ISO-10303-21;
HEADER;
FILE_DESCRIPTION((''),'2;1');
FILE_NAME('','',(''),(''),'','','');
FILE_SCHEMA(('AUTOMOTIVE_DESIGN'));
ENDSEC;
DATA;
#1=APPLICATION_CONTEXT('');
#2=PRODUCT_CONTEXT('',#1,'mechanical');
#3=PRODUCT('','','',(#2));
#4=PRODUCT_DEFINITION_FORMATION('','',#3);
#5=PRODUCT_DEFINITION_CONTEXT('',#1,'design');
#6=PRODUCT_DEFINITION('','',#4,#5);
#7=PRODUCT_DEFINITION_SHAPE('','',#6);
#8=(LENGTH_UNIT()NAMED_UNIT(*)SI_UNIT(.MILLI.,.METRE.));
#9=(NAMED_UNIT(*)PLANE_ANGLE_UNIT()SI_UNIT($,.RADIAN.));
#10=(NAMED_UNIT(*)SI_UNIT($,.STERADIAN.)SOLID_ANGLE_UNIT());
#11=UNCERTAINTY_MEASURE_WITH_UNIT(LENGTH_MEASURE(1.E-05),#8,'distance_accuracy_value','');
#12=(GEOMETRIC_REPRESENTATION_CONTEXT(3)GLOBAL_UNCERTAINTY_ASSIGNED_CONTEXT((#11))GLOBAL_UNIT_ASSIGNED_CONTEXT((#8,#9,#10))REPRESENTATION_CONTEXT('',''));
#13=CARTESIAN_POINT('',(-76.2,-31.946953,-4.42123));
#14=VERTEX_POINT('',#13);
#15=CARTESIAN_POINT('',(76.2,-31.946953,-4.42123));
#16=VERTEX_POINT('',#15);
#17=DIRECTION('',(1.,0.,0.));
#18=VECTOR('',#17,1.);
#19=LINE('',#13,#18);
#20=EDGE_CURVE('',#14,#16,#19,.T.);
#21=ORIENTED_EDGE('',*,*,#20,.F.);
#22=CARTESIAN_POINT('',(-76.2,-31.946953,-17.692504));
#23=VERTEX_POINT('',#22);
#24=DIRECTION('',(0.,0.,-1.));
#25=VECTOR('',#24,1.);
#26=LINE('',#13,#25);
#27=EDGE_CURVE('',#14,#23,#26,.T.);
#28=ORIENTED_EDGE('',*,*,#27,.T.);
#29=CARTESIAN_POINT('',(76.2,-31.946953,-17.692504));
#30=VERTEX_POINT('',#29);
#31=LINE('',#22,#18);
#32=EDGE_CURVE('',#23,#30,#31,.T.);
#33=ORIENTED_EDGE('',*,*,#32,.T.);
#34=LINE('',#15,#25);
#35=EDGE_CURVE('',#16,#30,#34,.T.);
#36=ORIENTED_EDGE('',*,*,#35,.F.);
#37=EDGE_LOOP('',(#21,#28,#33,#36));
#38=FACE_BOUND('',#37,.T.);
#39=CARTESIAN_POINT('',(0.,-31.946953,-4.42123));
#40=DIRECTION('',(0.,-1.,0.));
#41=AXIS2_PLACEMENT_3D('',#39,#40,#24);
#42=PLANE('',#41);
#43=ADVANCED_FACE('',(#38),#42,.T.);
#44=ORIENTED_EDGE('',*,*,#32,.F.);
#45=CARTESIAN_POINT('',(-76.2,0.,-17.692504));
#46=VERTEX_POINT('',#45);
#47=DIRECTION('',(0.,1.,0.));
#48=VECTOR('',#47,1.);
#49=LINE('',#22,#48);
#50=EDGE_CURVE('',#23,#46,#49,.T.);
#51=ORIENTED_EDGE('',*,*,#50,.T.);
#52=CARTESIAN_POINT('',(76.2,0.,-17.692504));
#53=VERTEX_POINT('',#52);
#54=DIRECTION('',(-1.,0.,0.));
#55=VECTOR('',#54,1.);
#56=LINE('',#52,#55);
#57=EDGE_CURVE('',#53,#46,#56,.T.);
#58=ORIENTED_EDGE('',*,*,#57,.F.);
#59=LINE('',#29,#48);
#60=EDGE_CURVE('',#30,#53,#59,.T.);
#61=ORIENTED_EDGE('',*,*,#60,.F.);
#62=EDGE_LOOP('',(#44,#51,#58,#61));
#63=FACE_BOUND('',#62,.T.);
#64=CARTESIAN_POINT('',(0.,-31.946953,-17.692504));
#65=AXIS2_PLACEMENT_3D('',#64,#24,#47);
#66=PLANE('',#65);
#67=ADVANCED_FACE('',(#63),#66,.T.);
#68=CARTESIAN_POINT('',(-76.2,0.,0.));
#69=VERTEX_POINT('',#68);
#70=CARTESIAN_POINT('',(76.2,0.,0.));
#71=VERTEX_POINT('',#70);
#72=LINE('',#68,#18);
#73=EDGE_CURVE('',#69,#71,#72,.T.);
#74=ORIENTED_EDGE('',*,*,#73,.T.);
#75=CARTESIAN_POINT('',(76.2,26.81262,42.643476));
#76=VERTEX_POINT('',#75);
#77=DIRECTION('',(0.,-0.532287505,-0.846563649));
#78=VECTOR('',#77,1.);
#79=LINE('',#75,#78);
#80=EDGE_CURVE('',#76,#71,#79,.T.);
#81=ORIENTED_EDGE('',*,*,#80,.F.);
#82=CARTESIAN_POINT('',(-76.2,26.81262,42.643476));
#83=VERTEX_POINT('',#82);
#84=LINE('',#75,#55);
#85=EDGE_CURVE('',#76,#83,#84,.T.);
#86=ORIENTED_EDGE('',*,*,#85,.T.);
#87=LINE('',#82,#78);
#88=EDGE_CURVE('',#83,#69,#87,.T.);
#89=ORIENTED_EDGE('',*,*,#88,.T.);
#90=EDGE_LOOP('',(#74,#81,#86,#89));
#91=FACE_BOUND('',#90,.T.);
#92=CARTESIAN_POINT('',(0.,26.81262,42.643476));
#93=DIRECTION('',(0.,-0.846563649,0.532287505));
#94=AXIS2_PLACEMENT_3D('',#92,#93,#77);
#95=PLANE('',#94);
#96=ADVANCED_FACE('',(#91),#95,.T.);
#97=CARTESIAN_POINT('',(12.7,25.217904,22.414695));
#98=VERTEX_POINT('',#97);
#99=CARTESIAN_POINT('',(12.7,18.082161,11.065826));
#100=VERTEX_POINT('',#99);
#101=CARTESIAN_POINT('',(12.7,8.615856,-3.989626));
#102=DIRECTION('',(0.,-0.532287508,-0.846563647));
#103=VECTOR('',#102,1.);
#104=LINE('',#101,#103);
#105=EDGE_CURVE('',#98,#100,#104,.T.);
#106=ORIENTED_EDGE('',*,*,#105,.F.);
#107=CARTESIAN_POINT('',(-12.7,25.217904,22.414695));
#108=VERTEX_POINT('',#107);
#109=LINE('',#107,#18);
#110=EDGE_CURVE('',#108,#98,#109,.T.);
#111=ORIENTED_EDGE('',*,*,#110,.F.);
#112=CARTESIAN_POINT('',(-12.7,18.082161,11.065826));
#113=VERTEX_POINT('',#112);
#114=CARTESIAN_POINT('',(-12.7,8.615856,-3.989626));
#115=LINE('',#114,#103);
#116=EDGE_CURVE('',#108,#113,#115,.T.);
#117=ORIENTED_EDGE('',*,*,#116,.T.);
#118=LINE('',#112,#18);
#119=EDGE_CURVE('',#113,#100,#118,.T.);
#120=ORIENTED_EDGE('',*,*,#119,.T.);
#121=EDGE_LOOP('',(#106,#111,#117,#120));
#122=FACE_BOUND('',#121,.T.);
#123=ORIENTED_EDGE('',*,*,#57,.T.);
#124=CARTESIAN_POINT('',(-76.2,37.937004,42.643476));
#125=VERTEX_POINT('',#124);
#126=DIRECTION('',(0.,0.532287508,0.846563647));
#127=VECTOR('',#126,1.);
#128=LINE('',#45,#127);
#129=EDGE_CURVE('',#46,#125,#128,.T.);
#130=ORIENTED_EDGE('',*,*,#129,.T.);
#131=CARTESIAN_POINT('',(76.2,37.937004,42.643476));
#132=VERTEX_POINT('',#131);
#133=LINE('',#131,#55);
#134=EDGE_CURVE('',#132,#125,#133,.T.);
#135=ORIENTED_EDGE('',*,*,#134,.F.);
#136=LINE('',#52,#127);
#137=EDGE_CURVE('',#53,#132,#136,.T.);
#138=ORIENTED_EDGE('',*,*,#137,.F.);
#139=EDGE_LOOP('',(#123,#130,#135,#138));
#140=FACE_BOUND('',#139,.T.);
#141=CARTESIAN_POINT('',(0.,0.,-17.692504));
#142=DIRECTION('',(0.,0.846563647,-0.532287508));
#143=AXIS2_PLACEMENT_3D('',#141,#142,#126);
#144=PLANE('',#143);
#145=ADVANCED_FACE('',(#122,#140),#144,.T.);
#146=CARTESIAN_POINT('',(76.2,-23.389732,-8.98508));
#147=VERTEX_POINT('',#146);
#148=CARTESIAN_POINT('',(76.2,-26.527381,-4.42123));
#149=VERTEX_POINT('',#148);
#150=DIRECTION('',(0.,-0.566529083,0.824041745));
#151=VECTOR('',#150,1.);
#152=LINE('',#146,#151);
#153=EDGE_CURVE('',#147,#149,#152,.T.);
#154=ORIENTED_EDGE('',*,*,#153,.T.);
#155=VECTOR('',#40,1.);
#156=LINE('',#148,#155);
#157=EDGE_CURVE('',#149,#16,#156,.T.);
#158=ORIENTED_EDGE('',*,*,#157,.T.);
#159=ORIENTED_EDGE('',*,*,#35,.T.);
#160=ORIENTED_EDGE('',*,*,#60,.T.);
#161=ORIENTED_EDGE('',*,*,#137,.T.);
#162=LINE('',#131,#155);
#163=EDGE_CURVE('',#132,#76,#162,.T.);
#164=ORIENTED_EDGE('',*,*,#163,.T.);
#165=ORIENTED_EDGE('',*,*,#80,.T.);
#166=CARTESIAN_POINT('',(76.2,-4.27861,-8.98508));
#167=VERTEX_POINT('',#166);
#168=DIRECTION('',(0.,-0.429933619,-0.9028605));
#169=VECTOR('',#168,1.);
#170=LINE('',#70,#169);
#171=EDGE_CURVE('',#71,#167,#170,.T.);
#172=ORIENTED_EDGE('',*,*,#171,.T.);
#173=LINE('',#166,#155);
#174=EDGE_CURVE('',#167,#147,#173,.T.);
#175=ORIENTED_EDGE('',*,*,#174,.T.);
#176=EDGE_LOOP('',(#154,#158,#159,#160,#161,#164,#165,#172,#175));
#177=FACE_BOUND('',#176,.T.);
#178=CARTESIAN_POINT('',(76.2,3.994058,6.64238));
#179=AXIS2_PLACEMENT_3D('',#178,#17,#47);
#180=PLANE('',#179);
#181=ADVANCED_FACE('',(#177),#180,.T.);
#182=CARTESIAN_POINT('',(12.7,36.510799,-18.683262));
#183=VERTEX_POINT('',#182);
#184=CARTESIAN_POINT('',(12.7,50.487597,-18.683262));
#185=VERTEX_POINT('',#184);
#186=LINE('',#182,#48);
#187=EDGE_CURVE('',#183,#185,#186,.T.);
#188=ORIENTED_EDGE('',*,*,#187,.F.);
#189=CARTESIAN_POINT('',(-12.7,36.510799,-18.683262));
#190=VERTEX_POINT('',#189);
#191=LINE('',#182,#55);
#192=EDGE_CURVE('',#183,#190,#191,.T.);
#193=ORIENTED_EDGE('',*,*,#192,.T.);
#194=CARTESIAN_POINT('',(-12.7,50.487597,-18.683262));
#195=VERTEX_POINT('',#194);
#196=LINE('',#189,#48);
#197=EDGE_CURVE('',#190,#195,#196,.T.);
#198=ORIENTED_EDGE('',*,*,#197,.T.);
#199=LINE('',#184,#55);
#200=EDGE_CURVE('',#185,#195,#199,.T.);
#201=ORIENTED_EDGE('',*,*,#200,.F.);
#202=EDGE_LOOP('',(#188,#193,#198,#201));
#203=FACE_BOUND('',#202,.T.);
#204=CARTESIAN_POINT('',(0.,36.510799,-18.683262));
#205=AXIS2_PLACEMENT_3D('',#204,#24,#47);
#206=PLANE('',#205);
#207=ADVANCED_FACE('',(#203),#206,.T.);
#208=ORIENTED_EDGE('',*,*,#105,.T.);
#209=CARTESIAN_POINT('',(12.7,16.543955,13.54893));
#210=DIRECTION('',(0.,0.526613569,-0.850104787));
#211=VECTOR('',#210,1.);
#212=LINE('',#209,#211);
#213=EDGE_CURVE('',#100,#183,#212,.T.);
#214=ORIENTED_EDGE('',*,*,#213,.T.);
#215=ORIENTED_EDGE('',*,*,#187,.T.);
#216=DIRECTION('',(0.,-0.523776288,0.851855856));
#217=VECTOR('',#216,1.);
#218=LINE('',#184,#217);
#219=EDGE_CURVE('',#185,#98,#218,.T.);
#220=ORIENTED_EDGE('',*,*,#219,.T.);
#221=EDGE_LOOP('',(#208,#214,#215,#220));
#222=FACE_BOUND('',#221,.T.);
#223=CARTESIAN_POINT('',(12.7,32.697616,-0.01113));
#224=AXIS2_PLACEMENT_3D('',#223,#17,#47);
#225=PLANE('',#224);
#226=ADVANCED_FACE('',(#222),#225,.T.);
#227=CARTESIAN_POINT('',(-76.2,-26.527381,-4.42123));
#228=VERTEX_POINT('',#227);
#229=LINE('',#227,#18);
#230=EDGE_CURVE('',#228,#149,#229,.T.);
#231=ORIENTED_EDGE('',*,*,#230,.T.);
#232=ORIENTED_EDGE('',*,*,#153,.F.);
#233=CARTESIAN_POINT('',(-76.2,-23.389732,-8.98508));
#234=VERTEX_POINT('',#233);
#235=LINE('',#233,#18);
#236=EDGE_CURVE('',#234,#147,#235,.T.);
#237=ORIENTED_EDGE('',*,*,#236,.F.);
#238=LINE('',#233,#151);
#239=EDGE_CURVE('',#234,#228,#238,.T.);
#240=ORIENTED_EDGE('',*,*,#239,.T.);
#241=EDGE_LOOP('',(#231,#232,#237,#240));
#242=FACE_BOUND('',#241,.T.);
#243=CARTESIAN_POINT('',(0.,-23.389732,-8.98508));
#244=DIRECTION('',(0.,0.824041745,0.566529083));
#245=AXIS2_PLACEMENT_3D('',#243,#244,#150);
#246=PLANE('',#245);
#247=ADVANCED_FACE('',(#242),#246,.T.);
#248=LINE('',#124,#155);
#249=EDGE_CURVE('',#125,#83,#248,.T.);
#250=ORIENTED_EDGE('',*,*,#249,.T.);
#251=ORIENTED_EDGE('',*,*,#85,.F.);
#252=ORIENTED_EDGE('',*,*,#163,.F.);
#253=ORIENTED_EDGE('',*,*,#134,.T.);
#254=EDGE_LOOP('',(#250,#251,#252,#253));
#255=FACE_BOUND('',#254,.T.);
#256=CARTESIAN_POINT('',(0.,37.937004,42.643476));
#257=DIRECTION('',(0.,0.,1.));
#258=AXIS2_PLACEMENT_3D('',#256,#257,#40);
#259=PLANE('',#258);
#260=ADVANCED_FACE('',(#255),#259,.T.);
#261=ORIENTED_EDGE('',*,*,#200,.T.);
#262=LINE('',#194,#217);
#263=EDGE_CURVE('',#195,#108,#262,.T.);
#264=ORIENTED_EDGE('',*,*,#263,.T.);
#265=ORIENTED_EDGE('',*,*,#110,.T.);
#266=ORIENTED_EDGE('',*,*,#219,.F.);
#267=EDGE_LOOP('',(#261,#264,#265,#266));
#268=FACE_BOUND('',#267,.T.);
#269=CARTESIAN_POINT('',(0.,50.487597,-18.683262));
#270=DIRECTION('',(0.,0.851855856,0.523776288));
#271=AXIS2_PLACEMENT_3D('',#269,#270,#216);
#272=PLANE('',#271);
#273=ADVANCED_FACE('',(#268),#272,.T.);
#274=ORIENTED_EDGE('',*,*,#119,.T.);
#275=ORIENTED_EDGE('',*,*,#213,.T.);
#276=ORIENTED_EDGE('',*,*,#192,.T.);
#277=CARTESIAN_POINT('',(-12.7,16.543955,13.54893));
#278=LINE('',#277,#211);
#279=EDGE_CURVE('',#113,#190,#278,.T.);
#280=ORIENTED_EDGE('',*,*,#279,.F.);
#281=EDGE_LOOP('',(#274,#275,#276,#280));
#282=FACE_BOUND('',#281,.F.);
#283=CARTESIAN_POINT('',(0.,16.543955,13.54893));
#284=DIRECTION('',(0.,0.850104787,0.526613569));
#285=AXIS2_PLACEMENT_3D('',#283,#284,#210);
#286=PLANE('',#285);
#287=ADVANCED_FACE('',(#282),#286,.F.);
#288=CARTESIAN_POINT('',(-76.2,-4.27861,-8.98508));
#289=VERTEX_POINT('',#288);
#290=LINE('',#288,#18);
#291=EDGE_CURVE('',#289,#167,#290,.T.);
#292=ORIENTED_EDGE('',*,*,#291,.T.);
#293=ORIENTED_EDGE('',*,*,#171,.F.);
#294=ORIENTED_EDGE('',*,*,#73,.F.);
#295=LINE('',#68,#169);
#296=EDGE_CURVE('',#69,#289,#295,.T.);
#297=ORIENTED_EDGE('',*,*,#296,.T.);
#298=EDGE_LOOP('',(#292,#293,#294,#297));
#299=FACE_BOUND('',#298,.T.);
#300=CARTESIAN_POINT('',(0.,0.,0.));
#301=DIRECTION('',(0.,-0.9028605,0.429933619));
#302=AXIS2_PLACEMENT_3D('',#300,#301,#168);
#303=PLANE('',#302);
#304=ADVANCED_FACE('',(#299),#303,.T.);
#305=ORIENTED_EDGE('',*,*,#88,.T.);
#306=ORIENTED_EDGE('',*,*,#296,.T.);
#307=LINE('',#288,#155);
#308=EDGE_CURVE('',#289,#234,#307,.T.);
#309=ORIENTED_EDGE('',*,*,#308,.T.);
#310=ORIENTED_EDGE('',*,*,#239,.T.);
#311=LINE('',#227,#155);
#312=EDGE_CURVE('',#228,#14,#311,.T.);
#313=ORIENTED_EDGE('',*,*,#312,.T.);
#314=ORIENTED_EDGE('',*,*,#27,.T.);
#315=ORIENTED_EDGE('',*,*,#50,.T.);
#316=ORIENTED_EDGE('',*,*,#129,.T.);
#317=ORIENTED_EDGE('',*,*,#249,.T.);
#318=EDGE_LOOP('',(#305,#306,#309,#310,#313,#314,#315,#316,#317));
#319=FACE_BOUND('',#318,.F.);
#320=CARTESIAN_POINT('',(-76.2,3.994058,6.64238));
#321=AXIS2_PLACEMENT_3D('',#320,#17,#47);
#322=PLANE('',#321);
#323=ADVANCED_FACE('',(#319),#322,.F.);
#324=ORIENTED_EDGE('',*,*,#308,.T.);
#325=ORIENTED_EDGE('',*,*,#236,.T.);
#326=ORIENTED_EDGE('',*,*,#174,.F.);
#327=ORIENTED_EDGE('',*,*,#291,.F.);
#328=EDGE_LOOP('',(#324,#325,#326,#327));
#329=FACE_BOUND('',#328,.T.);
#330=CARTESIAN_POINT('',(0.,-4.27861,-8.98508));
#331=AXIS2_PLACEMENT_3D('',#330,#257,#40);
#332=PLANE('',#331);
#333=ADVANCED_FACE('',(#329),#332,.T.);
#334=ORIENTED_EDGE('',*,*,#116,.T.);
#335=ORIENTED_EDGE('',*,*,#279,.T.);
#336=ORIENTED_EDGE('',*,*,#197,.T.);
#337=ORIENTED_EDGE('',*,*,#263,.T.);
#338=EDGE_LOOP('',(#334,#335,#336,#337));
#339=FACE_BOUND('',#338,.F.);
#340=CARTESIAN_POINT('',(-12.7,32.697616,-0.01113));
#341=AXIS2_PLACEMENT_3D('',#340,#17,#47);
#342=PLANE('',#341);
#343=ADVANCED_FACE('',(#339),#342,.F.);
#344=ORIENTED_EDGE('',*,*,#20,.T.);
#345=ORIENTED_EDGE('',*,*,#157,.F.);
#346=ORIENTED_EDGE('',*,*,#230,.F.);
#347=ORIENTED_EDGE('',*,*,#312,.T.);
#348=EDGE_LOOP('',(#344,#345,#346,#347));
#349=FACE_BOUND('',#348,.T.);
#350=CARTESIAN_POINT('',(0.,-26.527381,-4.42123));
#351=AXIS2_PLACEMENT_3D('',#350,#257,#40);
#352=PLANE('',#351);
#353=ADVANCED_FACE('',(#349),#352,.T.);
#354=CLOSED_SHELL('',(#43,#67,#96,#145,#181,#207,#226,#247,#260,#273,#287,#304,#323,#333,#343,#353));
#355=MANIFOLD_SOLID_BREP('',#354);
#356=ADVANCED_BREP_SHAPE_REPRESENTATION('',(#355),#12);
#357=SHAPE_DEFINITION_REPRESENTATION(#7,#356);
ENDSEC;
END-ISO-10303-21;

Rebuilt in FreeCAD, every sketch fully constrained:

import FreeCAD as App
import Part
import Sketcher
Q = App.Units.Quantity


def add_polygon(sketch, points):
    """Adds a closed chain of lines whose ends are joined by coincident constraints."""
    first, n = sketch.GeometryCount, len(points)
    for a, b in zip(points, points[1:] + points[:1]):
        sketch.addGeometry(Part.LineSegment(App.Vector(*a, 0), App.Vector(*b, 0)), False)
    for i in range(n):
        sketch.addConstraint(Sketcher.Constraint("Coincident", first + i, 2, first + (i + 1) % n, 1))

doc = App.newDocument("Part")
body = doc.addObject("PartDesign::Body", "Body")

sketch1 = body.newObject("Sketcher::SketchObject", "Sketch")
sketch1.AttachmentSupport = (doc.getObject("YZ_Plane"), [""])
sketch1.MapMode = "FlatFace"
add_polygon(sketch1, [(27, 43), (0, 0), (-4, -9), (-23, -9), (-27, -4), (-32, -4), (-32, -18), (0, -18), (38, 43)])
sketch1.addConstraint([
    Sketcher.Constraint("Horizontal", 2),
    Sketcher.Constraint("Horizontal", 4),
    Sketcher.Constraint("Vertical", 5),
    Sketcher.Constraint("Horizontal", 6),
    Sketcher.Constraint("Horizontal", 8),
    Sketcher.Constraint("Coincident", 0, 2, -1, 1),
    Sketcher.Constraint("PointOnObject", 6, 2, -2),
    Sketcher.Constraint("Parallel", 0, 7),
    Sketcher.Constraint("DistanceX", 3, 2, 8, 2, Q("2.1 in")),
    Sketcher.Constraint("DistanceX", 2, 2, 2, 1, Q("19.111122 mm")),
    Sketcher.Constraint("Distance", 0, Q("50.372439 mm")),
    Sketcher.Constraint("Distance", 7, Q("71.271641 mm")),
    Sketcher.Constraint("DistanceX", 4, 2, 4, 1, Q("5.419572 mm")),
    Sketcher.Constraint("DistanceX", 6, 1, 6, 2, Q("31.946953 mm")),
    Sketcher.Constraint("DistanceY", 5, 2, 5, 1, Q("13.271274 mm")),
    Sketcher.Constraint("DistanceX", 1, 2, -1, 1, Q("4.27861 mm")),
    Sketcher.Constraint("DistanceY", 1, 2, -1, 1, Q("8.98508 mm")),
])
pad1 = body.newObject("PartDesign::Pad", "Pad")
pad1.Profile = sketch1
pad1.Type = "TwoLengths"
pad1.Length = Q("3 in")
pad1.Length2 = Q("3 in")

sketch2 = body.newObject("Sketcher::SketchObject", "Sketch001")
sketch2.AttachmentSupport = (doc.getObject("YZ_Plane"), [""])
sketch2.MapMode = "FlatFace"
add_polygon(sketch2, [(50, -19), (25, 24), (17, 14), (37, -19)])
sketch2.addConstraint([
    Sketcher.Constraint("Horizontal", 3),
    Sketcher.Constraint("DistanceX", 3, 1, 3, 2, Q("13.976798 mm")),
    Sketcher.Constraint("DistanceX", -1, 1, 2, 2, Q("36.510799 mm")),
    Sketcher.Constraint("DistanceX", 0, 2, 3, 2, Q("25.956901 mm")),
    Sketcher.Constraint("Distance", 0, Q("49.557228 mm")),
    Sketcher.Constraint("Distance", 1, Q("12.785021 mm")),
    Sketcher.Constraint("Distance", 2, Q("37.915552 mm")),
    Sketcher.Constraint("DistanceY", -1, 1, 1, 2, Q("13.54893 mm")),
])
pad2 = body.newObject("PartDesign::Pad", "Pad001")
pad2.Profile = sketch2
pad2.Type = "TwoLengths"
pad2.Length = Q("0.5 in")
pad2.Length2 = Q("0.5 in")

doc.recompute()
